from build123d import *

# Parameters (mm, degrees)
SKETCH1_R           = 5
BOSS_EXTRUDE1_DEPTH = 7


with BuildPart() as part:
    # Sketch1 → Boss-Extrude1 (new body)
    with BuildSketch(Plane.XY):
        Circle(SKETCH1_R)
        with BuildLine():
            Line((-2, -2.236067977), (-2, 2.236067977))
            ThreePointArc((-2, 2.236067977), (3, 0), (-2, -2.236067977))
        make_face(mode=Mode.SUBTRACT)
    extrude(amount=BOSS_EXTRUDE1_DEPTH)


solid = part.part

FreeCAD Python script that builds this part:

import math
import FreeCAD as App
import Part
import Sketcher
Q = App.Units.Quantity

doc = App.newDocument("Part")
body = doc.addObject("PartDesign::Body", "Body")

sketch1 = doc.addObject("Sketcher::SketchObject", "Sketch")
body.addObject(sketch1)
sketch1.AttachmentSupport = (doc.XY_Plane, [""])
sketch1.MapMode = "FlatFace"
sketch1.addGeometry([
    Part.Circle(App.Vector(0, 0, 0), App.Vector(0, 0, 1), 5),
    Part.ArcOfCircle(Part.Circle(App.Vector(0, 0, 0), App.Vector(0, 0, 1), 3), math.radians(-131.810315), math.radians(131.810315)),
    Part.LineSegment(App.Vector(-2, -2.236068, 0), App.Vector(-2, 2.236068, 0)),
], False)
sketch1.addConstraint([
    Sketcher.Constraint("Coincident", 1, 1, 2, 1),
    Sketcher.Constraint("Coincident", 2, 2, 1, 2),
    Sketcher.Constraint("Vertical", 2),
    Sketcher.Constraint("Coincident", 0, 3, -1, 1),
    Sketcher.Constraint("Coincident", 1, 3, -1, 1),
    Sketcher.Constraint("Diameter", 0, Q("10 mm")),
    Sketcher.Constraint("Radius", 1, Q("3 mm")),
    Sketcher.Constraint("DistanceX", 1, 1, -1, 1, Q("2 mm")),
])
pad1 = doc.addObject("PartDesign::Pad", "Pad")
body.addObject(pad1)
pad1.Profile = sketch1
pad1.Length = 7

doc.recompute()
